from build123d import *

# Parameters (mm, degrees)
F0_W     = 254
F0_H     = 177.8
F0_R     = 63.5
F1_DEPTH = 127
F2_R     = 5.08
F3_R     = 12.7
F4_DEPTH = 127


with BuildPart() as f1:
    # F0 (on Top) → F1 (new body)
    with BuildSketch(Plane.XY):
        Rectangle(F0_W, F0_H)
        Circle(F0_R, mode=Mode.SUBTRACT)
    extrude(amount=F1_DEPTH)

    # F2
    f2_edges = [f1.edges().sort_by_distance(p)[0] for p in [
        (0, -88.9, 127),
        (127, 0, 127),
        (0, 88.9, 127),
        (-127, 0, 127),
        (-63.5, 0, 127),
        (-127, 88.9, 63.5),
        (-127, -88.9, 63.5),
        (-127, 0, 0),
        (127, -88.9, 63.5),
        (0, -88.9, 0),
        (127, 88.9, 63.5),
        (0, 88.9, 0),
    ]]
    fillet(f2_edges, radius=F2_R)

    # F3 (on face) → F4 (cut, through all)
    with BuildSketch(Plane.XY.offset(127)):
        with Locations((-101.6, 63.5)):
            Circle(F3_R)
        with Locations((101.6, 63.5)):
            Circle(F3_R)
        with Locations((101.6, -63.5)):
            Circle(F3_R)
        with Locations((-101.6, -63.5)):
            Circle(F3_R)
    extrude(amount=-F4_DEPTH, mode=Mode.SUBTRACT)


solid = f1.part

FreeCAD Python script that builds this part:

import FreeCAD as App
import Part
import Sketcher
from FreeCAD import Vector
Q = App.Units.Quantity


def edges_at(feature, points):
    """Names of the edges that pass closest to the given points."""
    edges = feature.Shape.Edges
    near = lambda p: min(range(len(edges)), key=lambda i: edges[i].distToShape(Part.Vertex(*p))[0])
    return sorted({f"Edge{near(p) + 1}" for p in points})

doc = App.newDocument("Part")
body = doc.addObject("PartDesign::Body", "Body")

# Sketch on XY plane
sketch1 = doc.addObject("Sketcher::SketchObject", "Sketch")
body.addObject(sketch1)
sketch1.AttachmentSupport = (doc.XY_Plane, [""])
sketch1.MapMode = "FlatFace"
sketch1.addGeometry(Part.LineSegment(Vector(-127, 89, 0), Vector(-127, -89, 0)), False)
sketch1.addGeometry(Part.LineSegment(Vector(-127, -89, 0), Vector(127, -89, 0)), False)
sketch1.addGeometry(Part.LineSegment(Vector(127, -89, 0), Vector(127, 89, 0)), False)
sketch1.addGeometry(Part.LineSegment(Vector(127, 89, 0), Vector(-127, 89, 0)), False)
sketch1.addGeometry(Part.Circle(Vector(0, 0, 0), Vector(0, 0, 1), 64), False)
sketch1.addConstraint(Sketcher.Constraint("Coincident", 0, 2, 1, 1))
sketch1.addConstraint(Sketcher.Constraint("Coincident", 1, 2, 2, 1))
sketch1.addConstraint(Sketcher.Constraint("Coincident", 2, 2, 3, 1))
sketch1.addConstraint(Sketcher.Constraint("Coincident", 3, 2, 0, 1))
sketch1.addConstraint(Sketcher.Constraint("Vertical", 0))
sketch1.addConstraint(Sketcher.Constraint("Horizontal", 1))
sketch1.addConstraint(Sketcher.Constraint("Vertical", 2))
sketch1.addConstraint(Sketcher.Constraint("Horizontal", 3))
sketch1.addConstraint(Sketcher.Constraint("Coincident", 4, 3, -1, 1))
sketch1.addConstraint(Sketcher.Constraint("Symmetric", 0, 2, 2, 2, -1, 1))
sketch1.addConstraint(Sketcher.Constraint("Diameter", 4, Q("5 in")))
sketch1.addConstraint(Sketcher.Constraint("DistanceX", 1, 1, 1, 2, Q("10 in")))
sketch1.addConstraint(Sketcher.Constraint("DistanceY", 0, 2, 0, 1, Q("7 in")))
pad1 = doc.addObject("PartDesign::Pad", "Pad")
body.addObject(pad1)
pad1.Profile = sketch1
pad1.Length = Q("5 in")
doc.recompute()

fillet = doc.addObject("PartDesign::Fillet", "Fillet")
body.addObject(fillet)
fillet.Base = (pad1, edges_at(pad1, [
    (0, -88.9, 127),
    (127, 0, 127),
    (0, 88.9, 127),
    (-127, 0, 127),
    (-63.5, 0, 127),
    (-127, 88.9, 63.5),
    (-127, -88.9, 63.5),
    (-127, 0, 0),
    (127, -88.9, 63.5),
    (0, -88.9, 0),
    (127, 88.9, 63.5),
    (0, 88.9, 0),
]))
fillet.Radius = Q("0.2 in")

# Sketch on XY plane
sketch2 = doc.addObject("Sketcher::SketchObject", "Sketch001")
body.addObject(sketch2)
sketch2.AttachmentSupport = (doc.XY_Plane, [""])
sketch2.MapMode = "FlatFace"
sketch2.AttachmentOffset = App.Placement(Vector(0, 0, 5 * 25.4), App.Rotation())
sketch2.addGeometry(Part.Circle(Vector(-102, 64, 0), Vector(0, 0, 1), 13), False)
sketch2.addGeometry(Part.Circle(Vector(102, 64, 0), Vector(0, 0, 1), 13), False)
sketch2.addGeometry(Part.Circle(Vector(102, -64, 0), Vector(0, 0, 1), 13), False)
sketch2.addGeometry(Part.Circle(Vector(-102, -64, 0), Vector(0, 0, 1), 13), False)
sketch2.addConstraint(Sketcher.Constraint("Equal", 0, 1))
sketch2.addConstraint(Sketcher.Constraint("Equal", 1, 2))
sketch2.addConstraint(Sketcher.Constraint("Equal", 2, 3))
sketch2.addConstraint(Sketcher.Constraint("Symmetric", 0, 3, 2, 3, -1, 1))
sketch2.addConstraint(Sketcher.Constraint("Symmetric", 1, 3, 3, 3, -1, 1))
sketch2.addConstraint(Sketcher.Constraint("Symmetric", 0, 3, 1, 3, -2))
sketch2.addConstraint(Sketcher.Constraint("Diameter", 0, Q("1 in")))
sketch2.addConstraint(Sketcher.Constraint("DistanceX", 0, 3, -1, 1, Q("4 in")))
sketch2.addConstraint(Sketcher.Constraint("DistanceY", 2, 3, 1, 3, Q("5 in")))
pocket1 = doc.addObject("PartDesign::Pocket", "Pocket")
body.addObject(pocket1)
pocket1.Profile = sketch2
pocket1.Type = "ThroughAll"

doc.recompute()
